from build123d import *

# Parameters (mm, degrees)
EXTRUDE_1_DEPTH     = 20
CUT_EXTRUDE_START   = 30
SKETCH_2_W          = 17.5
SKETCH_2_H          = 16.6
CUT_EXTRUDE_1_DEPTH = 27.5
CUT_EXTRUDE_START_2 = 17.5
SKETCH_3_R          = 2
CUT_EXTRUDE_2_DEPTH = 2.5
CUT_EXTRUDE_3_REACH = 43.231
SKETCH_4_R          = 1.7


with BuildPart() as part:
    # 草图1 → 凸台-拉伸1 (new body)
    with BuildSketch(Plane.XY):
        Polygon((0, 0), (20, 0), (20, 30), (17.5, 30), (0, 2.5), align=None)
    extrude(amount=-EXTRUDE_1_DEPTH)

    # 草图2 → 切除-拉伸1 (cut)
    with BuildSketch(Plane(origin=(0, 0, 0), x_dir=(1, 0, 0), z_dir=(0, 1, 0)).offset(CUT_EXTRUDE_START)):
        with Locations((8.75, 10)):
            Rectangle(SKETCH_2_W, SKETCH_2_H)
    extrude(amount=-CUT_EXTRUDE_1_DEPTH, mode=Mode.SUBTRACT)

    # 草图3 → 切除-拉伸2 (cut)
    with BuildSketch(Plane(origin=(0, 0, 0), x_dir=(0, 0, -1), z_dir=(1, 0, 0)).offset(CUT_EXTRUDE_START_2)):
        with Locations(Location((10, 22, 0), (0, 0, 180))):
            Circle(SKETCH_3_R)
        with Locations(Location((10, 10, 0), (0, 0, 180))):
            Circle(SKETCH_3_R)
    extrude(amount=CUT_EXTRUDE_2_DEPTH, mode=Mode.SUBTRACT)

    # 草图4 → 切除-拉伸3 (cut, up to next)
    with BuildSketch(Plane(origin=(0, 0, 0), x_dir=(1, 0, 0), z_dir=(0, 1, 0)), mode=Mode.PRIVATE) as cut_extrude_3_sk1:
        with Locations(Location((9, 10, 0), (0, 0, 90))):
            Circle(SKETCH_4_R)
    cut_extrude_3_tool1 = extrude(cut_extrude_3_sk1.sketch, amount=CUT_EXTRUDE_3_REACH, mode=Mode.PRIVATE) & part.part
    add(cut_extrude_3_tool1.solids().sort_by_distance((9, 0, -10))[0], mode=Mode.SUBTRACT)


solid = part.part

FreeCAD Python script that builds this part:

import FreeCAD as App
import Part
import Sketcher

V = App.Vector


def add_polygon(sketch, points):
    """Adds a closed chain of lines whose ends are joined by coincident constraints."""
    first, n = sketch.GeometryCount, len(points)
    for a, b in zip(points, points[1:] + points[:1]):
        sketch.addGeometry(Part.LineSegment(App.Vector(*a, 0), App.Vector(*b, 0)), False)
    for i in range(n):
        sketch.addConstraint(Sketcher.Constraint("Coincident", first + i, 2, first + (i + 1) % n, 1))

doc = App.newDocument("Part")
params = doc.addObject("Spreadsheet::Sheet", "Params")
for row, (alias, value) in enumerate([
    ("sketch1_width", "20 mm"),
    ("sketch1_height", "30 mm"),
    ("sketch1_width2", "2.5 mm"),
    ("pad1_length", "20 mm"),
    ("sketch2_width", "17.5 mm"),
    ("sketch2_height", "16.6 mm"),
    ("pocket1_length", "27.5 mm"),
    ("sketch3_diameter", "4 mm"),
    ("pocket2_length", "2.5 mm"),
    ("sketch4_diameter", "3.4 mm"),
], start=1):
    params.set(f"A{row}", alias)
    params.set(f"B{row}", "=" + value)
    params.setAlias(f"B{row}", alias)

body = doc.addObject("PartDesign::Body", "Body")

sketch1 = doc.addObject("Sketcher::SketchObject", "Sketch")
body.addObject(sketch1)
sketch1.AttachmentSupport = (doc.XY_Plane, [""])
sketch1.MapMode = "FlatFace"
add_polygon(sketch1, [(0, 0), (20, 0), (20, 30), (17.5, 30), (0, 2.5)])
sketch1.addConstraint([
    Sketcher.Constraint("Horizontal", 0),
    Sketcher.Constraint("Vertical", 1),
    Sketcher.Constraint("Horizontal", 2),
    Sketcher.Constraint("Vertical", 4),
    Sketcher.Constraint("Coincident", 4, 2, -1, 1),
    Sketcher.Constraint("Equal", 2, 4),
    Sketcher.Constraint("DistanceX", 0, 1, 0, 2, 20.0),
    Sketcher.Constraint("DistanceY", 1, 1, 1, 2, 30.0),
    Sketcher.Constraint("DistanceX", 2, 2, 2, 1, 2.5),
])
sketch1.setExpression("Constraints[11]", "Params.sketch1_width")
sketch1.setExpression("Constraints[12]", "Params.sketch1_height")
sketch1.setExpression("Constraints[13]", "Params.sketch1_width2")
pad1 = doc.addObject("PartDesign::Pad", "Pad")
body.addObject(pad1)
pad1.Profile = sketch1
pad1.setExpression("Length", "Params.pad1_length")
pad1.Reversed = True

sketch2 = doc.addObject("Sketcher::SketchObject", "Sketch001")
body.addObject(sketch2)
sketch2.AttachmentSupport = (doc.XZ_Plane, [""])
sketch2.MapMode = "FlatFace"
sketch2.AttachmentOffset = App.Placement(V(0, 0, -30), App.Rotation())
add_polygon(sketch2, [(0, -18.3), (0, -1.7), (17.5, -1.7), (17.5, -18.3)])
sketch2.addConstraint([
    Sketcher.Constraint("Vertical", 0),
    Sketcher.Constraint("Horizontal", 1),
    Sketcher.Constraint("Vertical", 2),
    Sketcher.Constraint("Horizontal", 3),
    Sketcher.Constraint("PointOnObject", 0, 2, -2),
    Sketcher.Constraint("DistanceX", 1, 1, 1, 2, 17.5),
    Sketcher.Constraint("DistanceY", 0, 1, 0, 2, 16.6),
    Sketcher.Constraint("DistanceY", 0, 2, -1, 1, 1.7),
])
sketch2.setExpression("Constraints[9]", "Params.sketch2_width")
sketch2.setExpression("Constraints[10]", "Params.sketch2_height")
pocket1 = doc.addObject("PartDesign::Pocket", "Pocket")
body.addObject(pocket1)
pocket1.Profile = sketch2
pocket1.setExpression("Length", "Params.pocket1_length")
pocket1.Reversed = True

sketch3 = doc.addObject("Sketcher::SketchObject", "Sketch002")
body.addObject(sketch3)
sketch3.AttachmentSupport = (doc.YZ_Plane, [""])
sketch3.MapMode = "FlatFace"
sketch3.AttachmentOffset = App.Placement(V(0, 0, 17.5), App.Rotation())
sketch3.addGeometry([
    Part.Circle(V(22, -10, 0), V(0, 0, 1), 2),
    Part.Circle(V(10, -10, 0), V(0, 0, 1), 2),
], False)
sketch3.addConstraint([
    Sketcher.Constraint("Equal", 0, 1),
    Sketcher.Constraint("Horizontal", 0, 3, 1, 3),
    Sketcher.Constraint("Diameter", 0, 4.0),
    Sketcher.Constraint("DistanceX", -1, 1, 0, 3, 22.0),
    Sketcher.Constraint("DistanceY", 0, 3, -1, 1, 10.0),
    Sketcher.Constraint("DistanceX", -1, 1, 1, 3, 10.0),
])
sketch3.setExpression("Constraints[2]", "Params.sketch3_diameter")
pocket2 = doc.addObject("PartDesign::Pocket", "Pocket001")
body.addObject(pocket2)
pocket2.Profile = sketch3
pocket2.setExpression("Length", "Params.pocket2_length")
pocket2.Reversed = True

sketch4 = doc.addObject("Sketcher::SketchObject", "Sketch003")
body.addObject(sketch4)
sketch4.AttachmentSupport = (doc.XZ_Plane, [""])
sketch4.MapMode = "FlatFace"
sketch4.addGeometry(Part.Circle(V(9, -10, 0), V(0, 0, 1), 1.7), False)
sketch4.addConstraint([
    Sketcher.Constraint("Diameter", 0, 3.4),
    Sketcher.Constraint("DistanceX", -1, 1, 0, 3, 9.0),
    Sketcher.Constraint("DistanceY", 0, 3, -1, 1, 10.0),
])
sketch4.setExpression("Constraints[0]", "Params.sketch4_diameter")
pocket3 = doc.addObject("PartDesign::Pocket", "Pocket002")
body.addObject(pocket3)
pocket3.Profile = sketch4
pocket3.Type = "UpToFirst"

doc.recompute()
